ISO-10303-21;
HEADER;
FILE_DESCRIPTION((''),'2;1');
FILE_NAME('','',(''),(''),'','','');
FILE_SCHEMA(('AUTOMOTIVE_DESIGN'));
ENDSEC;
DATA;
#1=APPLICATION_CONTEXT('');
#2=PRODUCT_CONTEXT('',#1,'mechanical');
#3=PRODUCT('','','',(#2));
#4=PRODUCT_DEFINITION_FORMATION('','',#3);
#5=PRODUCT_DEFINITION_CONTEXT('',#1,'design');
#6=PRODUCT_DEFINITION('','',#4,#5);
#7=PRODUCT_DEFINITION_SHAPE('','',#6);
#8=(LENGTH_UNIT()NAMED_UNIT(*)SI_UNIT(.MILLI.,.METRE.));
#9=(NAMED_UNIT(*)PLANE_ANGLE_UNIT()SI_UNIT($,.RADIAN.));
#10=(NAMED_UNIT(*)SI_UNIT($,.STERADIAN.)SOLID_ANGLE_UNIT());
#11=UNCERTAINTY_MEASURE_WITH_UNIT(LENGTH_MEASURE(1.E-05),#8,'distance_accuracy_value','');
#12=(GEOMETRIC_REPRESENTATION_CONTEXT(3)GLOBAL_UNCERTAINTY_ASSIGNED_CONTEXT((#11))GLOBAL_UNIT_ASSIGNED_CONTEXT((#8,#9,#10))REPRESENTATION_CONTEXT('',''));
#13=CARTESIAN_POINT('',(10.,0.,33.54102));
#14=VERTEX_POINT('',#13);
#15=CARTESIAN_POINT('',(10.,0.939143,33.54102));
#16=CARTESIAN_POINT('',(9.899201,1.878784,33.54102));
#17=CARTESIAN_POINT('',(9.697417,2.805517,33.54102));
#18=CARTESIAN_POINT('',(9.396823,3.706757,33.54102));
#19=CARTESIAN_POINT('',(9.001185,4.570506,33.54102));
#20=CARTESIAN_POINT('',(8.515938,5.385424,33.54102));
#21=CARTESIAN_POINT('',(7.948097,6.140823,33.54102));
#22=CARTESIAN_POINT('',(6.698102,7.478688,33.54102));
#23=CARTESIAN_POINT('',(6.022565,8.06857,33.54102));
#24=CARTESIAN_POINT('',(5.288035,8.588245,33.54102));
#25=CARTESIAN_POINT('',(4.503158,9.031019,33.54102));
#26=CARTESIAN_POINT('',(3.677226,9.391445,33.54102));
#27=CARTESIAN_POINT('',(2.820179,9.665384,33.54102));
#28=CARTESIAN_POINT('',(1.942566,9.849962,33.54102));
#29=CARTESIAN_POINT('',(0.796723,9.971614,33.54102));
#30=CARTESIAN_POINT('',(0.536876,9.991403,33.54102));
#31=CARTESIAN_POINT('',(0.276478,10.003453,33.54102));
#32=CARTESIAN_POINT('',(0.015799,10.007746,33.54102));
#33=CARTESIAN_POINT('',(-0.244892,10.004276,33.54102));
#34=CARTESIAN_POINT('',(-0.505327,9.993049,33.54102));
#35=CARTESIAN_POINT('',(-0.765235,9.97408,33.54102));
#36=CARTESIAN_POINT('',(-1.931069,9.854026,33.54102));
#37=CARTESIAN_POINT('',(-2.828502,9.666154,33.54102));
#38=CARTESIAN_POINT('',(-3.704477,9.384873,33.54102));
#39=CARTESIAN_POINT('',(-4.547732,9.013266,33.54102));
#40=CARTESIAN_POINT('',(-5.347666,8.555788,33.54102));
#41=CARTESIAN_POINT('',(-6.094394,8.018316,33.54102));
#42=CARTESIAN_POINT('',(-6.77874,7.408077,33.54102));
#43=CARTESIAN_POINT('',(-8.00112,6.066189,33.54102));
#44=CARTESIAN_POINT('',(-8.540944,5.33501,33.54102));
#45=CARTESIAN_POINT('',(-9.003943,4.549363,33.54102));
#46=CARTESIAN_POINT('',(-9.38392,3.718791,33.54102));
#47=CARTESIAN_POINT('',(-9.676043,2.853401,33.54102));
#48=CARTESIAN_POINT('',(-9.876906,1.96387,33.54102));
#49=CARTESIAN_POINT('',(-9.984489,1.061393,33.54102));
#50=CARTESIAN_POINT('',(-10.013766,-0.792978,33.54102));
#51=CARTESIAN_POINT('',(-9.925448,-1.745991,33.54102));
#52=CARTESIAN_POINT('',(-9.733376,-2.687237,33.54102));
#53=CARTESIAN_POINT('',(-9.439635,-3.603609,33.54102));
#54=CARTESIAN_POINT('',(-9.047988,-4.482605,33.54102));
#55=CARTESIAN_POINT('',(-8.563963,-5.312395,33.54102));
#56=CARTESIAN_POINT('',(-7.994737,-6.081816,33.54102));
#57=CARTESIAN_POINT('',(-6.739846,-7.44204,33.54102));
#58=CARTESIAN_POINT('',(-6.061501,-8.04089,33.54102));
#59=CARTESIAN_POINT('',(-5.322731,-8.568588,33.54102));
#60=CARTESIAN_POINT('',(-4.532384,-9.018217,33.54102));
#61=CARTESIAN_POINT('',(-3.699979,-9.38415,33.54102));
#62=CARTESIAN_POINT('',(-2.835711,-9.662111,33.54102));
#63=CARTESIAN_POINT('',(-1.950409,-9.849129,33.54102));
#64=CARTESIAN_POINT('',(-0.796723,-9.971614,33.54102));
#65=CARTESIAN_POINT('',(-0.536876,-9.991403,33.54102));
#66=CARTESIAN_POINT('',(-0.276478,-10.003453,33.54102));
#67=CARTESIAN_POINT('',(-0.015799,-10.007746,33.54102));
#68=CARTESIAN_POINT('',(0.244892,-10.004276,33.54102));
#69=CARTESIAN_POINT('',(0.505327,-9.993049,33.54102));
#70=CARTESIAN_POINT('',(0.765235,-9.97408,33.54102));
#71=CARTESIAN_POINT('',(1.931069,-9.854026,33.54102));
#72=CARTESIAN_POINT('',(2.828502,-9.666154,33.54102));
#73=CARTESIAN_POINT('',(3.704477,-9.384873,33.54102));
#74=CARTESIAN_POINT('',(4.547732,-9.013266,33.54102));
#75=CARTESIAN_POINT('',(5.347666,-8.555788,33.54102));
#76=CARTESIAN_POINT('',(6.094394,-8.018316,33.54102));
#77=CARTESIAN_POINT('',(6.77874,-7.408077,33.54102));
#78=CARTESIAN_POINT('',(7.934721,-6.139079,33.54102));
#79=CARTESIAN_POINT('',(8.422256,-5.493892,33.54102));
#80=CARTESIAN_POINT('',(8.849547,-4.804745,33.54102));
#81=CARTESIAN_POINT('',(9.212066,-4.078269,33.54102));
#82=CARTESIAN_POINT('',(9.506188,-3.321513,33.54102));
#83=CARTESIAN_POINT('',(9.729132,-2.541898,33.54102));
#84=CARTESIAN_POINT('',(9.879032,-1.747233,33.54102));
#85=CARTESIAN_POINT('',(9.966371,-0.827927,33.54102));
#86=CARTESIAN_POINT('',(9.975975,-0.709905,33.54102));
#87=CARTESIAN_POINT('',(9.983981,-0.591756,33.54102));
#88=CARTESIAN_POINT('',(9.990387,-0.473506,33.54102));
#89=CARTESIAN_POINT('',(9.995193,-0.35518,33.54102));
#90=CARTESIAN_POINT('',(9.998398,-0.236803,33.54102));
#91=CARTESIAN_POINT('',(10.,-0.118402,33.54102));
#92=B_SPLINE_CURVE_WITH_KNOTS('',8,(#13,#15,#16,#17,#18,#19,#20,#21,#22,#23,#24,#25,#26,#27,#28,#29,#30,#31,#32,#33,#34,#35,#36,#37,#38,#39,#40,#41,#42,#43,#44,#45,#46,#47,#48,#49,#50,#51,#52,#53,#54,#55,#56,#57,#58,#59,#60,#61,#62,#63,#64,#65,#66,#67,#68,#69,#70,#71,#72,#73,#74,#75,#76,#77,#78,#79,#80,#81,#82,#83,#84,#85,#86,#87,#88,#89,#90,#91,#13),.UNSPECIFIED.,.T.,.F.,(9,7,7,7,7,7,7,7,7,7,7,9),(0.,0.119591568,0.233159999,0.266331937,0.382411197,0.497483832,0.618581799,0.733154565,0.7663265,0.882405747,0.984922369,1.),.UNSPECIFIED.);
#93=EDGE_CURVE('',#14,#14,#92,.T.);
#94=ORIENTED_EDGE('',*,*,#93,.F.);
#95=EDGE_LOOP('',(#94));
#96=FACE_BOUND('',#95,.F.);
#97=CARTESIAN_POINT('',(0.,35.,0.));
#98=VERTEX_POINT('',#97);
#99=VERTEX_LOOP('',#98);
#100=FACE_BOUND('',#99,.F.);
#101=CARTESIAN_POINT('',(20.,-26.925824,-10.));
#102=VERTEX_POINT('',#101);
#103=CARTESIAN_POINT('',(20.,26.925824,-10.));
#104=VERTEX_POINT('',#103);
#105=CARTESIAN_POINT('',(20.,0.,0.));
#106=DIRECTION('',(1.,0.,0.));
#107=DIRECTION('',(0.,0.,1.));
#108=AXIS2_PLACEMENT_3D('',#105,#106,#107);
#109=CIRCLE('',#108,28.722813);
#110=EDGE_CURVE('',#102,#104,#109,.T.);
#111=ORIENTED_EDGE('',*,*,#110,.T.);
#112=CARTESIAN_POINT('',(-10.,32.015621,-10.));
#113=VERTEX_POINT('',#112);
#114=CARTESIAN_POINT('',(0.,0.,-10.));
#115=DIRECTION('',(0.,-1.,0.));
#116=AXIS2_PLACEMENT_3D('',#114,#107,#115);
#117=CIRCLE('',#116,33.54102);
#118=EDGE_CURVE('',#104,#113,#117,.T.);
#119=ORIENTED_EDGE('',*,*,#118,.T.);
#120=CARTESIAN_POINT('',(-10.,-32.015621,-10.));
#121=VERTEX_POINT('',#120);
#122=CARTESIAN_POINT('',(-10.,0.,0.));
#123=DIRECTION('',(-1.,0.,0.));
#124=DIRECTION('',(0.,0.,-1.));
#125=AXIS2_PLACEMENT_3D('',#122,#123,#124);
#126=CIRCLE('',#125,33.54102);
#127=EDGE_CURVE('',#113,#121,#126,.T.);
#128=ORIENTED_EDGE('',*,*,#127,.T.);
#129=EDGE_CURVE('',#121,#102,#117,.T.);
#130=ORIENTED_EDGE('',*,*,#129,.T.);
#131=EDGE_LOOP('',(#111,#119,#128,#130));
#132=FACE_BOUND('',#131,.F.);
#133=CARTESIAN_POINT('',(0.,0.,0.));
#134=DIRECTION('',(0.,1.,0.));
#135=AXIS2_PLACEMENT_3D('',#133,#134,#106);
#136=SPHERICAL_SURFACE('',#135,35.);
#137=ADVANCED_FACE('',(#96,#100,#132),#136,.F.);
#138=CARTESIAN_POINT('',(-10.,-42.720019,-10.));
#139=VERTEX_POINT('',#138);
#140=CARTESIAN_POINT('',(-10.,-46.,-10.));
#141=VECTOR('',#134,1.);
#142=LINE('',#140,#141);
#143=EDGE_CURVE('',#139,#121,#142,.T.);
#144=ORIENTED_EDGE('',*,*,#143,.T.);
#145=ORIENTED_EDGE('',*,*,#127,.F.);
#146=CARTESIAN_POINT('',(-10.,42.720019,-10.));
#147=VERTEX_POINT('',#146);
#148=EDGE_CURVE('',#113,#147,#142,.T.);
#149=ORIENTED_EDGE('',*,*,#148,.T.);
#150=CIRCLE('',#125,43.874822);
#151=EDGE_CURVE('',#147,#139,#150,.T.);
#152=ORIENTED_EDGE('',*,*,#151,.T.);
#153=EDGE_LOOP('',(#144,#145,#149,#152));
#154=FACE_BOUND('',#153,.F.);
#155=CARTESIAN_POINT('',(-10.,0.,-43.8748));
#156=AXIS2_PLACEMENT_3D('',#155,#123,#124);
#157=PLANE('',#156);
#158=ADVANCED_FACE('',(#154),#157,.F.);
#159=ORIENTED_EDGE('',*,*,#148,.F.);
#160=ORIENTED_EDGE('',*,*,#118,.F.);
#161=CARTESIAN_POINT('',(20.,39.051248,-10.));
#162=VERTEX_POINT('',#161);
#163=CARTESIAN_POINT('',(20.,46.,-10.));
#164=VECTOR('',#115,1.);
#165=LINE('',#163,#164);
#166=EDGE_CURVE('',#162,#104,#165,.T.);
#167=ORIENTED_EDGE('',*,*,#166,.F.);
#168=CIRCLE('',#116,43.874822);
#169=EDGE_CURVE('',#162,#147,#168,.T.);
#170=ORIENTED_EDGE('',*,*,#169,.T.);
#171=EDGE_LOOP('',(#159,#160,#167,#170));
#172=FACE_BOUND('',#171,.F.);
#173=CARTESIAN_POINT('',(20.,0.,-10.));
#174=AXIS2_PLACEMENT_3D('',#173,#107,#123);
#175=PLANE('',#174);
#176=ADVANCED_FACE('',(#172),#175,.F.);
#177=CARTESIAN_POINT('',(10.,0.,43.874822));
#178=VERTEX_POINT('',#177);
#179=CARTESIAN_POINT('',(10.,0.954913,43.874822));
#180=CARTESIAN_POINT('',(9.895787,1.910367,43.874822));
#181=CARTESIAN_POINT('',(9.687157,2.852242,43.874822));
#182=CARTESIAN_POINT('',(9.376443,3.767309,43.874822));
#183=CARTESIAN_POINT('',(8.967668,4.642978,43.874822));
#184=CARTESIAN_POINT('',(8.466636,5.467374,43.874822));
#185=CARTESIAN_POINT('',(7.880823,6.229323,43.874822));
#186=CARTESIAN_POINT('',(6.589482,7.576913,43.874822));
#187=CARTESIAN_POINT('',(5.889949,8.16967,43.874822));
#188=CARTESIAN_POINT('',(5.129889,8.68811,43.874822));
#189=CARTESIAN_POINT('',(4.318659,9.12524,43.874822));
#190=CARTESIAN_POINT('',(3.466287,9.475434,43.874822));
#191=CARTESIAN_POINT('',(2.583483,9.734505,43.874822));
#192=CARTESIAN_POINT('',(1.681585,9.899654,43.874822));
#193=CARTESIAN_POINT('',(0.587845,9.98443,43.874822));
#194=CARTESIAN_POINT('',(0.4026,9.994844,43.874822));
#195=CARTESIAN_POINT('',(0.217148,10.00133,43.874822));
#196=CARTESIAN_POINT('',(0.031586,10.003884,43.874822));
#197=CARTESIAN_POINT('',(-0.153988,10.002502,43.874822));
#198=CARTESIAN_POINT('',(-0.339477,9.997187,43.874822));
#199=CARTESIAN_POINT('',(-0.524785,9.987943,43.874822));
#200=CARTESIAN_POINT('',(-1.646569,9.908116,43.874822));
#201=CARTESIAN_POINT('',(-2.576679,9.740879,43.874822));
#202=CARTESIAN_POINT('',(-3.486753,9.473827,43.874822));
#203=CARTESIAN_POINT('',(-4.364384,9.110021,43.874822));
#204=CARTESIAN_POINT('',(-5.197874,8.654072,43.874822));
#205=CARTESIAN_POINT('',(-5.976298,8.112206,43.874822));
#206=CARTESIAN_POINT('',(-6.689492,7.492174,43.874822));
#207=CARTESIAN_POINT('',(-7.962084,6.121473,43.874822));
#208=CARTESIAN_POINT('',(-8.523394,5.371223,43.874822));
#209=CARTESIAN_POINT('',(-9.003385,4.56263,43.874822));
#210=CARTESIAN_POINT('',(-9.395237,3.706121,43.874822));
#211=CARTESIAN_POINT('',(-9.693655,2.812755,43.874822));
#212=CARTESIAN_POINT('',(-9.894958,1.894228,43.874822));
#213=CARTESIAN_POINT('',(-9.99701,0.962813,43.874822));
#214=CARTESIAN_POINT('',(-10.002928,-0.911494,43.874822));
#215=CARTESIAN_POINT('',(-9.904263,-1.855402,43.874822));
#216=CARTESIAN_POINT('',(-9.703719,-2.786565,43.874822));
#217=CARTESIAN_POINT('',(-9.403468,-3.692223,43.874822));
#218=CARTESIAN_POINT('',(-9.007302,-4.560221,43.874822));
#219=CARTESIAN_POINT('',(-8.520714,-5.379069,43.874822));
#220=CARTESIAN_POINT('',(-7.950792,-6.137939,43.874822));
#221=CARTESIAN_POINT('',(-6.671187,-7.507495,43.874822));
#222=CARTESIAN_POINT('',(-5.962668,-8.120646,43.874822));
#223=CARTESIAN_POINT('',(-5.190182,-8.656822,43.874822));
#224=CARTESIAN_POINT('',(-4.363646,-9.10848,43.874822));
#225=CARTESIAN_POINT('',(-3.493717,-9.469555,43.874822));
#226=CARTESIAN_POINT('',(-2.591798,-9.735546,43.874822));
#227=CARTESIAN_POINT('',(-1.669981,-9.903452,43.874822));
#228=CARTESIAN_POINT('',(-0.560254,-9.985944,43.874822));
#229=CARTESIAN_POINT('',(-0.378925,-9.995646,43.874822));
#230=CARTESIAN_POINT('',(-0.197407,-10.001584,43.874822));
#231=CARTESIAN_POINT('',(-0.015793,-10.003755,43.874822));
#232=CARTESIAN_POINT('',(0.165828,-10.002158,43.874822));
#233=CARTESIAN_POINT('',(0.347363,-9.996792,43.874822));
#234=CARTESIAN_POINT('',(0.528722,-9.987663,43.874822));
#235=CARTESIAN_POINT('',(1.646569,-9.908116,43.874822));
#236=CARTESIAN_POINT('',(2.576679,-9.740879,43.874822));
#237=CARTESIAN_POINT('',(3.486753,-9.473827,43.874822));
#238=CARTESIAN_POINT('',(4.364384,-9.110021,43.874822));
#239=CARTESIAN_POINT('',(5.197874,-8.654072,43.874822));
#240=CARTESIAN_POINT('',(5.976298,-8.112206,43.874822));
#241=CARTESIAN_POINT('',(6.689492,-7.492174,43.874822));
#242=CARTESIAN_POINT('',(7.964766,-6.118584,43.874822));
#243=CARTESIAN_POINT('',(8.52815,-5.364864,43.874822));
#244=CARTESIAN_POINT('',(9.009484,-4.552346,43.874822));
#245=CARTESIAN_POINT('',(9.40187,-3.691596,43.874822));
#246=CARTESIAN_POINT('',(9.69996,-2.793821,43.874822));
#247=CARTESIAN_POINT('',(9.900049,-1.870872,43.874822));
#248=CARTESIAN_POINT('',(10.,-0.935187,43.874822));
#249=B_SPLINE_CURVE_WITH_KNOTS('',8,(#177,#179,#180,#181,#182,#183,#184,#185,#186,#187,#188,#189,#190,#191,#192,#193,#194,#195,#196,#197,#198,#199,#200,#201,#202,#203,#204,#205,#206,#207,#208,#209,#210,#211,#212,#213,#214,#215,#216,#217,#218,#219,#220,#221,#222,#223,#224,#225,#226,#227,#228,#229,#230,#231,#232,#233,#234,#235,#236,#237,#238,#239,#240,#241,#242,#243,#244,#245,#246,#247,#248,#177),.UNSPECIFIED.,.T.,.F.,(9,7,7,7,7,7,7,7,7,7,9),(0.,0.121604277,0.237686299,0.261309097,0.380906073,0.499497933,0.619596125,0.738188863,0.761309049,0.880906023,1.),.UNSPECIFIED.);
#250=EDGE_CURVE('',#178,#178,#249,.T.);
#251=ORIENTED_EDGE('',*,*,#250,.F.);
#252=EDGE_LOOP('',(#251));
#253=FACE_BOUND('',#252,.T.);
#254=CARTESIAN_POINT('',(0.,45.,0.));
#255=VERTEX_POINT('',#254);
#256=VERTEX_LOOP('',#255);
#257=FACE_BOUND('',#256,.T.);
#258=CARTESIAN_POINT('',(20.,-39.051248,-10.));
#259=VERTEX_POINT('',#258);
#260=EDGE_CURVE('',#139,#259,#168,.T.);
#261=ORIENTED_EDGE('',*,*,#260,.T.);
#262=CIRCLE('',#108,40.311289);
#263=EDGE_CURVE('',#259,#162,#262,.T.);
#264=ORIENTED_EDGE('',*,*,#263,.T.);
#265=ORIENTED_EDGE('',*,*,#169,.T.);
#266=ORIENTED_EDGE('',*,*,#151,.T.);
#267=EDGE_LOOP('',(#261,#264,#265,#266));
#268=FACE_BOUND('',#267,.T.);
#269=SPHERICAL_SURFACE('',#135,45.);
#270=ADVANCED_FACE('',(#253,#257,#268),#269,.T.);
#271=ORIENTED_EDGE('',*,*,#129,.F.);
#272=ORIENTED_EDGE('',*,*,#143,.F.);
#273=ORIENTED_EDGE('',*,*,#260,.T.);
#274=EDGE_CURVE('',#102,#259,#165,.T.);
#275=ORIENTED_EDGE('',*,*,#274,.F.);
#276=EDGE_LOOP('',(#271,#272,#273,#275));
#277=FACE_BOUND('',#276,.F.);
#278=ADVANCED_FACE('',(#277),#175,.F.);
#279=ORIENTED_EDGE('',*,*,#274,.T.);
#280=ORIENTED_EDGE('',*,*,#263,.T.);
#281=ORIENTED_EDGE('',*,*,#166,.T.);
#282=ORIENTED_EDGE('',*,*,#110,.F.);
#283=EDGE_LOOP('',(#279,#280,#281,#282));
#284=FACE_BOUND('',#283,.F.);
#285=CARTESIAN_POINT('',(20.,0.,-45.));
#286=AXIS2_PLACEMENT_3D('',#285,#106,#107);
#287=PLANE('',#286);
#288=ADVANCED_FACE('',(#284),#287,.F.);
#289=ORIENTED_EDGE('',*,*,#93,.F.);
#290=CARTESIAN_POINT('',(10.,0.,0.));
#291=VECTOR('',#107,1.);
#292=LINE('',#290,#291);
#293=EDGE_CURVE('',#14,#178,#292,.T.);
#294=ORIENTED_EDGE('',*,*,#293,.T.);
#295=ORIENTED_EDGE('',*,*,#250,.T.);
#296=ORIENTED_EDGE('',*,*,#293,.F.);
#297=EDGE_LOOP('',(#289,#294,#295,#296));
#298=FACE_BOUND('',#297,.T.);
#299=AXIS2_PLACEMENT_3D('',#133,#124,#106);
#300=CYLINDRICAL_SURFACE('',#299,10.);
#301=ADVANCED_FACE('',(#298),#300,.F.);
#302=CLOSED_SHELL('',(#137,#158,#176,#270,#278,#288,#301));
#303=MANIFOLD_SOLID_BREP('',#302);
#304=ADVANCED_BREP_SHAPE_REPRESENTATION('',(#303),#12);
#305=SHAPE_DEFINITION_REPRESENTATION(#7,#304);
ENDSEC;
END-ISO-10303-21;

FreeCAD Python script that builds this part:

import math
import FreeCAD as App
import Part
import Sketcher


def add_polygon(sketch, points):
    """Adds a closed chain of lines whose ends are joined by coincident constraints."""
    first, n = sketch.GeometryCount, len(points)
    for a, b in zip(points, points[1:] + points[:1]):
        sketch.addGeometry(Part.LineSegment(App.Vector(*a, 0), App.Vector(*b, 0)), False)
    for i in range(n):
        sketch.addConstraint(Sketcher.Constraint("Coincident", first + i, 2, first + (i + 1) % n, 1))

doc = App.newDocument("Part")
body = doc.addObject("PartDesign::Body", "Body")

sketch1 = body.newObject("Sketcher::SketchObject", "Sketch")
sketch1.AttachmentSupport = (doc.getObject("XY_Plane"), [""])
sketch1.MapMode = "FlatFace"
sketch1.addGeometry([
    Part.ArcOfCircle(Part.Circle(App.Vector(0, 0, 0), App.Vector(0, 0, 1), 35), math.radians(-90), math.radians(90)),
    Part.LineSegment(App.Vector(0, -35, 0), App.Vector(0, -45, 0)),
    Part.ArcOfCircle(Part.Circle(App.Vector(0, 0, 0), App.Vector(0, 0, 1), 45), math.radians(-90), math.radians(90)),
    Part.LineSegment(App.Vector(0, 45, 0), App.Vector(0, 35, 0)),
], False)
sketch1.addConstraint([
    Sketcher.Constraint("Coincident", 0, 1, 1, 1),
    Sketcher.Constraint("Coincident", 1, 2, 2, 1),
    Sketcher.Constraint("Coincident", 2, 2, 3, 1),
    Sketcher.Constraint("Coincident", 3, 2, 0, 2),
    Sketcher.Constraint("Vertical", 1),
    Sketcher.Constraint("Vertical", 3),
    Sketcher.Constraint("Coincident", 0, 3, -1, 1),
    Sketcher.Constraint("Coincident", 2, 3, -1, 1),
    Sketcher.Constraint("PointOnObject", 0, 1, -2),
    Sketcher.Constraint("PointOnObject", 2, 2, -2),
    Sketcher.Constraint("Radius", 0, 35.0),
    Sketcher.Constraint("Radius", 2, 45.0),
])
revolution = body.newObject("PartDesign::Revolution", "Revolution")
revolution.Profile = sketch1
revolution.ReferenceAxis = (sketch1, ["V_Axis"])
revolution.Angle = 360

sketch2 = body.newObject("Sketcher::SketchObject", "Sketch001")
sketch2.AttachmentSupport = (doc.getObject("XY_Plane"), [""])
sketch2.MapMode = "FlatFace"
sketch2.addGeometry(Part.Circle(App.Vector(0, 0, 0), App.Vector(0, 0, 1), 10), False)
sketch2.addConstraint([
    Sketcher.Constraint("Coincident", 0, 3, -1, 1),
    Sketcher.Constraint("Diameter", 0, 20.0),
])
pocket1 = body.newObject("PartDesign::Pocket", "Pocket")
pocket1.Profile = sketch2
pocket1.Type = "ThroughAll"
pocket1.Reversed = True

sketch3 = body.newObject("Sketcher::SketchObject", "Sketch002")
sketch3.AttachmentSupport = (doc.getObject("XZ_Plane"), [""])
sketch3.MapMode = "FlatFace"
add_polygon(sketch3, [(-10, -45), (-10, -10), (20, -10), (20, -45)])
sketch3.addConstraint([
    Sketcher.Constraint("Vertical", 0),
    Sketcher.Constraint("Horizontal", 1),
    Sketcher.Constraint("Vertical", 2),
    Sketcher.Constraint("Horizontal", 3),
    Sketcher.Constraint("DistanceX", 1, 1, 1, 2, 30.0),
    Sketcher.Constraint("DistanceX", 0, 2, -1, 1, 10.0),
    Sketcher.Constraint("DistanceY", 0, 2, -1, 1, 10.0),
    Sketcher.Constraint("DistanceY", 0, 1, 0, 2, 35.0),
])
pocket2 = body.newObject("PartDesign::Pocket", "Pocket001")
pocket2.Profile = sketch3
pocket2.Type = "ThroughAll"
pocket2.Midplane = True

doc.recompute()
